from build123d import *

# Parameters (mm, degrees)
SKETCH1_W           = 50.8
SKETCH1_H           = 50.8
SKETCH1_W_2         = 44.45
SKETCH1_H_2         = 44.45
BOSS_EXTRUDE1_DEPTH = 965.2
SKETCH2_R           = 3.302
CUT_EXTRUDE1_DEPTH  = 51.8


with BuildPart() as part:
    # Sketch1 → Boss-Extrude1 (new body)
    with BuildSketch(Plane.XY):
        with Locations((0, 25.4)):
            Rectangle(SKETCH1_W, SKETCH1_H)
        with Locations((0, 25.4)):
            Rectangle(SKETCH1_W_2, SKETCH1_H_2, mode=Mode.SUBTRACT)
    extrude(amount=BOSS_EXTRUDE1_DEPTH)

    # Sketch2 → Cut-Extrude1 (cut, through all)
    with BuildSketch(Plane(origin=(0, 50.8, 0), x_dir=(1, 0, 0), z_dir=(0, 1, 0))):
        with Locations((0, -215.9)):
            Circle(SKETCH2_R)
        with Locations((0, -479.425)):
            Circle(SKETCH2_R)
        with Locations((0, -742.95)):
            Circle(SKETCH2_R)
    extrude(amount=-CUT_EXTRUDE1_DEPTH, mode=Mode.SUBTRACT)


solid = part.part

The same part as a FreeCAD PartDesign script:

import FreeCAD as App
import Part
import Sketcher

V = App.Vector
Q = App.Units.Quantity

doc = App.newDocument("Part")
body = doc.addObject("PartDesign::Body", "Body")

# Sketch on XY plane
sketch1 = doc.addObject("Sketcher::SketchObject", "Sketch")
body.addObject(sketch1)
sketch1.AttachmentSupport = (doc.XY_Plane, [""])
sketch1.MapMode = "FlatFace"
sketch1.addGeometry([
    Part.LineSegment(V(-25, 51, 0), V(-25, 0, 0)),  # 0
    Part.LineSegment(V(-25, 0, 0), V(25, 0, 0)),  # 1
    Part.LineSegment(V(25, 0, 0), V(25, 51, 0)),  # 2
    Part.LineSegment(V(25, 51, 0), V(-25, 51, 0)),  # 3
    Part.LineSegment(V(22, 3, 0), V(-22, 3, 0)),  # 4
    Part.LineSegment(V(-22, 3, 0), V(-22, 48, 0)),  # 5
    Part.LineSegment(V(-22, 48, 0), V(22, 48, 0)),  # 6
    Part.LineSegment(V(22, 48, 0), V(22, 3, 0)),  # 7
], False)
sketch1.addConstraint([
    Sketcher.Constraint("Coincident", 0, 2, 1, 1),
    Sketcher.Constraint("Coincident", 1, 2, 2, 1),
    Sketcher.Constraint("Coincident", 2, 2, 3, 1),
    Sketcher.Constraint("Coincident", 3, 2, 0, 1),
    Sketcher.Constraint("Coincident", 4, 2, 5, 1),
    Sketcher.Constraint("Coincident", 5, 2, 6, 1),
    Sketcher.Constraint("Coincident", 6, 2, 7, 1),
    Sketcher.Constraint("Coincident", 7, 2, 4, 1),
    Sketcher.Constraint("Vertical", 0),
    Sketcher.Constraint("Horizontal", 1),
    Sketcher.Constraint("Vertical", 2),
    Sketcher.Constraint("Horizontal", 3),
    Sketcher.Constraint("Horizontal", 4),
    Sketcher.Constraint("Vertical", 5),
    Sketcher.Constraint("Horizontal", 6),
    Sketcher.Constraint("Vertical", 7),
    Sketcher.Constraint("Symmetric", 0, 2, 1, 2, -1, 1),
    Sketcher.Constraint("Equal", 3, 0),
    Sketcher.Constraint("Equal", 6, 5),
    Sketcher.Constraint("DistanceX", 1, 1, 1, 2, Q("2 in")),
    Sketcher.Constraint("DistanceX", 4, 2, 4, 1, Q("1.75 in")),
    Sketcher.Constraint("DistanceX", 4, 2, -1, 1, Q("0.875 in")),
    Sketcher.Constraint("DistanceY", -1, 1, 4, 2, Q("0.125 in")),
])
pad1 = doc.addObject("PartDesign::Pad", "Pad")
body.addObject(pad1)
pad1.Profile = sketch1
pad1.Length = Q("38 in")

# Sketch on XZ plane
sketch2 = doc.addObject("Sketcher::SketchObject", "Sketch001")
body.addObject(sketch2)
sketch2.AttachmentSupport = (doc.XZ_Plane, [""])
sketch2.MapMode = "FlatFace"
sketch2.AttachmentOffset = App.Placement(V(0, 0, -2 * 25.4), App.Rotation())
sketch2.addGeometry([
    Part.Circle(V(0, 215.9, 0), V(0, 0, 1), 3.3),
    Part.Circle(V(0, 479.4, 0), V(0, 0, 1), 3.3),
    Part.Circle(V(0, 743, 0), V(0, 0, 1), 3.3),
], False)
sketch2.addConstraint([
    Sketcher.Constraint("Equal", 0, 1),
    Sketcher.Constraint("Equal", 1, 2),
    Sketcher.Constraint("PointOnObject", 0, 3, -2),
    Sketcher.Constraint("PointOnObject", 1, 3, -2),
    Sketcher.Constraint("PointOnObject", 2, 3, -2),
    Sketcher.Constraint("Diameter", 0, Q("0.26 in")),
    Sketcher.Constraint("DistanceY", -1, 1, 0, 3, Q("8.5 in")),
    Sketcher.Constraint("DistanceY", -1, 1, 2, 3, Q("29.25 in")),
    Sketcher.Constraint("DistanceY", -1, 1, 1, 3, Q("18.875 in")),
])
pocket1 = doc.addObject("PartDesign::Pocket", "Pocket")
body.addObject(pocket1)
pocket1.Profile = sketch2
pocket1.Type = "ThroughAll"
pocket1.Reversed = True

doc.recompute()
